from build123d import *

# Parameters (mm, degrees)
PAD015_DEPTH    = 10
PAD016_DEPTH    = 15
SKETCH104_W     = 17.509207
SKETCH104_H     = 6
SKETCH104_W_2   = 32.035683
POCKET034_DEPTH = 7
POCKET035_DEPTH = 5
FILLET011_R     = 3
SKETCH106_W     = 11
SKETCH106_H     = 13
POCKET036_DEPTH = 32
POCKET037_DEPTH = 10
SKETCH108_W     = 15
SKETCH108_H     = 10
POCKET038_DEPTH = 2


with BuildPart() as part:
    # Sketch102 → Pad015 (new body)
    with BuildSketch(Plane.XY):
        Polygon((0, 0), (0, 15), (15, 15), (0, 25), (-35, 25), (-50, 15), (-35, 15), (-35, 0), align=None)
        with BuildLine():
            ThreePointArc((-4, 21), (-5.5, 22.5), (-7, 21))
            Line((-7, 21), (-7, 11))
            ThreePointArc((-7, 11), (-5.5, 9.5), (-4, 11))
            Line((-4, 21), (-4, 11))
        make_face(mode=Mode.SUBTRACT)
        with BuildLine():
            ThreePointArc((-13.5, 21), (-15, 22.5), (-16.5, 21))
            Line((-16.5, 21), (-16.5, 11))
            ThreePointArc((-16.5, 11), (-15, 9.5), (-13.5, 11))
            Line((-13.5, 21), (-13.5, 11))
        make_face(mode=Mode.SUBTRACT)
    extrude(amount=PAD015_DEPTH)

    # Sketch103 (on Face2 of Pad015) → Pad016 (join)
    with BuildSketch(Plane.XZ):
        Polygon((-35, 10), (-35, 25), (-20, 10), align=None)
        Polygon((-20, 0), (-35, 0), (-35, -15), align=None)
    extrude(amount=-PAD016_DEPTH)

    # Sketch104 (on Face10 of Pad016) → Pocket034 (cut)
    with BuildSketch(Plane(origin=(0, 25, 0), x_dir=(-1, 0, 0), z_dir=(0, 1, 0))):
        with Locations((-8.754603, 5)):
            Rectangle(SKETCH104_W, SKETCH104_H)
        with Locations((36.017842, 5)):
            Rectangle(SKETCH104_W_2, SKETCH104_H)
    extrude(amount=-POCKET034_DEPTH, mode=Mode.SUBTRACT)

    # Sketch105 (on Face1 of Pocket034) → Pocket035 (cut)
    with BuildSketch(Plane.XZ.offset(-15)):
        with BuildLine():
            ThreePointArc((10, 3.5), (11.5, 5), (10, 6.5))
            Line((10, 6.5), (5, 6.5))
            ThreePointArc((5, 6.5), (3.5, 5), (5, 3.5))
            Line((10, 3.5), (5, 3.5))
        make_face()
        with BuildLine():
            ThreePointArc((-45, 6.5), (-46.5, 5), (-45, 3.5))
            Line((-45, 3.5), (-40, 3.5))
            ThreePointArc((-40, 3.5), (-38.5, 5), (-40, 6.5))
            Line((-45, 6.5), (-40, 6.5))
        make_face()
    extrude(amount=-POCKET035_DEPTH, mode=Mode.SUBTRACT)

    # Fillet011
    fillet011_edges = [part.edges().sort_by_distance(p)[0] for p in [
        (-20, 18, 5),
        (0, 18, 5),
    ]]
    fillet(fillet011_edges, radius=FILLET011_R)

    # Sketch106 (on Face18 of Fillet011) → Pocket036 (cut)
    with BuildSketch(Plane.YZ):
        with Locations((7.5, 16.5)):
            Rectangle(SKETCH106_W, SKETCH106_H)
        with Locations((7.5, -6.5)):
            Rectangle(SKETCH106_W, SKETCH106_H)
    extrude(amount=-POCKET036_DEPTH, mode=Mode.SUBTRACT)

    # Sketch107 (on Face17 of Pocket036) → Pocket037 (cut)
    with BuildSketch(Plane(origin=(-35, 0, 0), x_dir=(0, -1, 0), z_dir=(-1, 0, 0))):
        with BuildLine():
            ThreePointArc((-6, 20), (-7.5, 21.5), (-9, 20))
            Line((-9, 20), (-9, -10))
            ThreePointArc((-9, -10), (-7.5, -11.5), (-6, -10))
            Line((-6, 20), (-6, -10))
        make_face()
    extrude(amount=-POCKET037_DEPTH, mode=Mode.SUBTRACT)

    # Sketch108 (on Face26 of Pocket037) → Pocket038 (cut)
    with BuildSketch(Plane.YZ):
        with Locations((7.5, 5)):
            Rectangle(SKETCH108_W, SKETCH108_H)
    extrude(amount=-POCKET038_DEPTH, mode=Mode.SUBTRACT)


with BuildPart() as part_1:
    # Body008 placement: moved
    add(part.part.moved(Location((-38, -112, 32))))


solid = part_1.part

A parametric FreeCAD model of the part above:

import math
import FreeCAD as App
import Part
import Sketcher
from FreeCAD import Vector


def edges_at(feature, points):
    """Names of the edges that pass closest to the given points."""
    edges = feature.Shape.Edges
    near = lambda p: min(range(len(edges)), key=lambda i: edges[i].distToShape(Part.Vertex(*p))[0])
    return sorted({f"Edge{near(p) + 1}" for p in points})

doc = App.newDocument("Part")
body = doc.addObject("PartDesign::Body", "Body")

# Sketch on XY plane
sketch1 = doc.addObject("Sketcher::SketchObject", "Sketch")
body.addObject(sketch1)
sketch1.AttachmentSupport = (doc.XY_Plane, [""])
sketch1.MapMode = "FlatFace"
sketch1.addGeometry([
    Part.LineSegment(Vector(0, 0, 0), Vector(0, 15, 0)),  # 0
    Part.LineSegment(Vector(0, 15, 0), Vector(15, 15, 0)),  # 1
    Part.LineSegment(Vector(15, 15, 0), Vector(0, 25, 0)),  # 2
    Part.LineSegment(Vector(0, 25, 0), Vector(-35, 25, 0)),  # 3
    Part.LineSegment(Vector(-35, 25, 0), Vector(-50, 15, 0)),  # 4
    Part.LineSegment(Vector(-50, 15, 0), Vector(-35, 15, 0)),  # 5
    Part.LineSegment(Vector(-35, 15, 0), Vector(-35, 0, 0)),  # 6
    Part.LineSegment(Vector(-35, 0, 0), Vector(0, 0, 0)),  # 7
    Part.ArcOfCircle(Part.Circle(Vector(-15, 21, 0), Vector(0, 0, 1), 1.5), math.radians(0), math.radians(180)),  # 8
    Part.LineSegment(Vector(-13.5, 21, 0), Vector(-13.5, 11, 0)),  # 9
    Part.ArcOfCircle(Part.Circle(Vector(-15, 11, 0), Vector(0, 0, 1), 1.5), math.radians(180), math.radians(360)),  # 10
    Part.LineSegment(Vector(-16.5, 11, 0), Vector(-16.5, 21, 0)),  # 11
    Part.ArcOfCircle(Part.Circle(Vector(-5.5, 21, 0), Vector(0, 0, 1), 1.5), math.radians(0), math.radians(180)),  # 12
    Part.LineSegment(Vector(-4, 21, 0), Vector(-4, 11, 0)),  # 13
    Part.ArcOfCircle(Part.Circle(Vector(-5.5, 11, 0), Vector(0, 0, 1), 1.5), math.radians(180), math.radians(360)),  # 14
    Part.LineSegment(Vector(-7, 11, 0), Vector(-7, 21, 0)),  # 15
], False)
sketch1.addConstraint([
    Sketcher.Constraint("Coincident", 0, 2, 1, 1),
    Sketcher.Constraint("Coincident", 1, 2, 2, 1),
    Sketcher.Constraint("Coincident", 2, 2, 3, 1),
    Sketcher.Constraint("Coincident", 3, 2, 4, 1),
    Sketcher.Constraint("Coincident", 4, 2, 5, 1),
    Sketcher.Constraint("Coincident", 5, 2, 6, 1),
    Sketcher.Constraint("Coincident", 6, 2, 7, 1),
    Sketcher.Constraint("Coincident", 7, 2, 0, 1),
    Sketcher.Constraint("Tangent", 8, 1, 9, 1),
    Sketcher.Constraint("Tangent", 9, 2, 10, 2),
    Sketcher.Constraint("Tangent", 10, 1, 11, 1),
    Sketcher.Constraint("Tangent", 11, 2, 8, 2),
    Sketcher.Constraint("Tangent", 12, 1, 13, 1),
    Sketcher.Constraint("Tangent", 13, 2, 14, 2),
    Sketcher.Constraint("Tangent", 14, 1, 15, 1),
    Sketcher.Constraint("Tangent", 15, 2, 12, 2),
    Sketcher.Constraint("Vertical", 0),
    Sketcher.Constraint("Horizontal", 1),
    Sketcher.Constraint("Horizontal", 3),
    Sketcher.Constraint("Horizontal", 5),
    Sketcher.Constraint("Vertical", 6),
    Sketcher.Constraint("Horizontal", 7),
    Sketcher.Constraint("Vertical", 9),
    Sketcher.Constraint("Vertical", 11),
    Sketcher.Constraint("Vertical", 13),
    Sketcher.Constraint("Vertical", 15),
    Sketcher.Constraint("Coincident", 7, 2, -1, 1),
    Sketcher.Constraint("Equal", 10, 12),
    Sketcher.Constraint("PointOnObject", 2, 2, -2),
    Sketcher.Constraint("Horizontal", 8, 3, 12, 3),
    Sketcher.Constraint("Horizontal", 10, 3, 14, 3),
    Sketcher.Constraint("Horizontal", 1, 2, 4, 2),
    Sketcher.Constraint("Vertical", 3, 2, 5, 2),
    Sketcher.Constraint("Equal", 1, 5),
    Sketcher.Constraint("Equal", 5, 0),
    Sketcher.Constraint("Radius", 8, 1.5),
    Sketcher.Constraint("DistanceX", 1, 1, 1, 2, 15.0),
    Sketcher.Constraint("DistanceX", 3, 2, 3, 1, 35.0),
    Sketcher.Constraint("DistanceY", 9, 2, 9, 1, 10.0),
    Sketcher.Constraint("DistanceX", 8, 3, -1, 1, 15.0),
    Sketcher.Constraint("DistanceY", -1, 1, 8, 3, 21.0),
    Sketcher.Constraint("DistanceY", -1, 1, 2, 2, 25.0),
    Sketcher.Constraint("DistanceX", 12, 1, -1, 1, 4.0),
])
pad1 = doc.addObject("PartDesign::Pad", "Pad")
body.addObject(pad1)
pad1.Profile = sketch1
pad1.Length = 10

# Sketch on XZ plane
sketch2 = doc.addObject("Sketcher::SketchObject", "Sketch001")
body.addObject(sketch2)
sketch2.AttachmentSupport = (doc.XZ_Plane, [""])
sketch2.MapMode = "FlatFace"
sketch2.addGeometry([
    Part.LineSegment(Vector(-35, 25, 0), Vector(-35, 10, 0)),  # 0
    Part.LineSegment(Vector(-35, 10, 0), Vector(-20, 10, 0)),  # 1
    Part.LineSegment(Vector(-20, 10, 0), Vector(-35, 25, 0)),  # 2
    Part.LineSegment(Vector(-20, 0, 0), Vector(-35, 0, 0)),  # 3
    Part.LineSegment(Vector(-35, 0, 0), Vector(-35, -15, 0)),  # 4
    Part.LineSegment(Vector(-35, -15, 0), Vector(-20, 0, 0)),  # 5
], False)
sketch2.addConstraint([
    Sketcher.Constraint("Coincident", 0, 2, 1, 1),
    Sketcher.Constraint("Coincident", 1, 2, 2, 1),
    Sketcher.Constraint("Coincident", 2, 2, 0, 1),
    Sketcher.Constraint("Coincident", 3, 2, 4, 1),
    Sketcher.Constraint("Coincident", 4, 2, 5, 1),
    Sketcher.Constraint("Coincident", 5, 2, 3, 1),
    Sketcher.Constraint("Vertical", 0),
    Sketcher.Constraint("Horizontal", 1),
    Sketcher.Constraint("Horizontal", 3),
    Sketcher.Constraint("Vertical", 4),
    Sketcher.Constraint("PointOnObject", 3, 2, -1),
    Sketcher.Constraint("Perpendicular", 2, 5),
    Sketcher.Constraint("Vertical", 2, 2, 3, 2),
    Sketcher.Constraint("Vertical", 1, 2, 5, 2),
    Sketcher.Constraint("Equal", 3, 0),
    Sketcher.Constraint("DistanceX", 1, 1, 1, 2, 15.0),
    Sketcher.Constraint("DistanceX", 0, 2, -1, 1, 35.0),
    Sketcher.Constraint("DistanceY", -1, 1, 0, 2, 10.0),
])
pad2 = doc.addObject("PartDesign::Pad", "Pad001")
body.addObject(pad2)
pad2.Profile = sketch2
pad2.Length = 15
pad2.Reversed = True

# Sketch on XZ plane
sketch3 = doc.addObject("Sketcher::SketchObject", "Sketch002")
body.addObject(sketch3)
sketch3.AttachmentSupport = (doc.XZ_Plane, [""])
sketch3.MapMode = "FlatFace"
sketch3.AttachmentOffset = App.Placement(Vector(0, 0, -25), App.Rotation())
sketch3.addGeometry([
    Part.LineSegment(Vector(18, 8, 0), Vector(18, 2, 0)),  # 0
    Part.LineSegment(Vector(18, 2, 0), Vector(0, 2, 0)),  # 1
    Part.LineSegment(Vector(0, 2, 0), Vector(0, 8, 0)),  # 2
    Part.LineSegment(Vector(0, 8, 0), Vector(18, 8, 0)),  # 3
    Part.LineSegment(Vector(-20, 8, 0), Vector(-20, 2, 0)),  # 4
    Part.LineSegment(Vector(-20, 2, 0), Vector(-52, 2, 0)),  # 5
    Part.LineSegment(Vector(-52, 2, 0), Vector(-52, 8, 0)),  # 6
    Part.LineSegment(Vector(-52, 8, 0), Vector(-20, 8, 0)),  # 7
], False)
sketch3.addConstraint([
    Sketcher.Constraint("Coincident", 0, 2, 1, 1),
    Sketcher.Constraint("Coincident", 1, 2, 2, 1),
    Sketcher.Constraint("Coincident", 2, 2, 3, 1),
    Sketcher.Constraint("Coincident", 3, 2, 0, 1),
    Sketcher.Constraint("Coincident", 4, 2, 5, 1),
    Sketcher.Constraint("Coincident", 5, 2, 6, 1),
    Sketcher.Constraint("Coincident", 6, 2, 7, 1),
    Sketcher.Constraint("Coincident", 7, 2, 4, 1),
    Sketcher.Constraint("Vertical", 0),
    Sketcher.Constraint("Horizontal", 1),
    Sketcher.Constraint("Vertical", 2),
    Sketcher.Constraint("Horizontal", 3),
    Sketcher.Constraint("Vertical", 4),
    Sketcher.Constraint("Horizontal", 5),
    Sketcher.Constraint("Vertical", 6),
    Sketcher.Constraint("Horizontal", 7),
    Sketcher.Constraint("PointOnObject", 1, 2, -2),
    Sketcher.Constraint("Horizontal", 1, 2, 4, 2),
    Sketcher.Constraint("Horizontal", 3, 2, 6, 2),
    Sketcher.Constraint("DistanceY", 0, 2, 0, 1, 6.0),
    Sketcher.Constraint("DistanceY", -1, 1, 0, 2, 2.0),
    Sketcher.Constraint("DistanceX", 4, 2, -1, 1, 20.0),
    Sketcher.Constraint("DistanceX", 1, 2, 1, 1, 17.509207),
    Sketcher.Constraint("DistanceX", 5, 2, 5, 1, 32.035683),
])
pocket1 = doc.addObject("PartDesign::Pocket", "Pocket")
body.addObject(pocket1)
pocket1.Profile = sketch3
pocket1.Length = 7
pocket1.Reversed = True

# Sketch on XZ plane
sketch4 = doc.addObject("Sketcher::SketchObject", "Sketch003")
body.addObject(sketch4)
sketch4.AttachmentSupport = (doc.XZ_Plane, [""])
sketch4.MapMode = "FlatFace"
sketch4.AttachmentOffset = App.Placement(Vector(0, 0, -15), App.Rotation())
sketch4.addGeometry([
    Part.ArcOfCircle(Part.Circle(Vector(10, 5, 0), Vector(0, 0, 1), 1.5), math.radians(-90), math.radians(90)),  # 0
    Part.LineSegment(Vector(10, 6.5, 0), Vector(5, 6.5, 0)),  # 1
    Part.ArcOfCircle(Part.Circle(Vector(5, 5, 0), Vector(0, 0, 1), 1.5), math.radians(90), math.radians(270)),  # 2
    Part.LineSegment(Vector(5, 3.5, 0), Vector(10, 3.5, 0)),  # 3
    Part.ArcOfCircle(Part.Circle(Vector(-45, 5, 0), Vector(0, 0, 1), 1.5), math.radians(90), math.radians(270)),  # 4
    Part.LineSegment(Vector(-45, 3.5, 0), Vector(-40, 3.5, 0)),  # 5
    Part.ArcOfCircle(Part.Circle(Vector(-40, 5, 0), Vector(0, 0, 1), 1.5), math.radians(-90), math.radians(90)),  # 6
    Part.LineSegment(Vector(-40, 6.5, 0), Vector(-45, 6.5, 0)),  # 7
], False)
sketch4.addConstraint([
    Sketcher.Constraint("Tangent", 0, 2, 1, 1),
    Sketcher.Constraint("Tangent", 1, 2, 2, 1),
    Sketcher.Constraint("Tangent", 2, 2, 3, 1),
    Sketcher.Constraint("Tangent", 3, 2, 0, 1),
    Sketcher.Constraint("Tangent", 4, 2, 5, 1),
    Sketcher.Constraint("Tangent", 5, 2, 6, 1),
    Sketcher.Constraint("Tangent", 6, 2, 7, 1),
    Sketcher.Constraint("Tangent", 7, 2, 4, 1),
    Sketcher.Constraint("Horizontal", 1),
    Sketcher.Constraint("Horizontal", 3),
    Sketcher.Constraint("Horizontal", 5),
    Sketcher.Constraint("Horizontal", 7),
    Sketcher.Constraint("Equal", 2, 4),
    Sketcher.Constraint("Horizontal", 2, 3, 4, 3),
    Sketcher.Constraint("Equal", 3, 5),
    Sketcher.Constraint("Radius", 0, 1.5),
    Sketcher.Constraint("DistanceX", 1, 2, 1, 1, 5.0),
    Sketcher.Constraint("DistanceX", -1, 1, 0, 3, 10.0),
    Sketcher.Constraint("DistanceY", -1, 1, 0, 3, 5.0),
    Sketcher.Constraint("DistanceX", 4, 3, -1, 1, 45.0),
])
pocket2 = doc.addObject("PartDesign::Pocket", "Pocket001")
body.addObject(pocket2)
pocket2.Profile = sketch4
pocket2.Length = 5
doc.recompute()

fillet = doc.addObject("PartDesign::Fillet", "Fillet")
body.addObject(fillet)
fillet.Base = (pocket2, edges_at(pocket2, [(-20, 18, 5), (0, 18, 5)]))
fillet.Radius = 3

# Sketch on YZ plane
sketch5 = doc.addObject("Sketcher::SketchObject", "Sketch004")
body.addObject(sketch5)
sketch5.AttachmentSupport = (doc.YZ_Plane, [""])
sketch5.MapMode = "FlatFace"
sketch5.addGeometry([
    Part.LineSegment(Vector(2, 23, 0), Vector(2, 10, 0)),  # 0
    Part.LineSegment(Vector(2, 10, 0), Vector(13, 10, 0)),  # 1
    Part.LineSegment(Vector(13, 10, 0), Vector(13, 23, 0)),  # 2
    Part.LineSegment(Vector(13, 23, 0), Vector(2, 23, 0)),  # 3
    Part.LineSegment(Vector(2, 0, 0), Vector(2, -13, 0)),  # 4
    Part.LineSegment(Vector(2, -13, 0), Vector(13, -13, 0)),  # 5
    Part.LineSegment(Vector(13, -13, 0), Vector(13, 0, 0)),  # 6
    Part.LineSegment(Vector(13, 0, 0), Vector(2, 0, 0)),  # 7
], False)
sketch5.addConstraint([
    Sketcher.Constraint("Coincident", 0, 2, 1, 1),
    Sketcher.Constraint("Coincident", 1, 2, 2, 1),
    Sketcher.Constraint("Coincident", 2, 2, 3, 1),
    Sketcher.Constraint("Coincident", 3, 2, 0, 1),
    Sketcher.Constraint("Coincident", 4, 2, 5, 1),
    Sketcher.Constraint("Coincident", 5, 2, 6, 1),
    Sketcher.Constraint("Coincident", 6, 2, 7, 1),
    Sketcher.Constraint("Coincident", 7, 2, 4, 1),
    Sketcher.Constraint("Vertical", 0),
    Sketcher.Constraint("Horizontal", 1),
    Sketcher.Constraint("Vertical", 2),
    Sketcher.Constraint("Horizontal", 3),
    Sketcher.Constraint("Vertical", 4),
    Sketcher.Constraint("Horizontal", 5),
    Sketcher.Constraint("Vertical", 6),
    Sketcher.Constraint("Horizontal", 7),
    Sketcher.Constraint("PointOnObject", 6, 2, -1),
    Sketcher.Constraint("Vertical", 3, 2, 4, 2),
    Sketcher.Constraint("Vertical", 2, 2, 5, 2),
    Sketcher.Constraint("Equal", 2, 4),
    Sketcher.Constraint("DistanceX", 1, 1, 1, 2, 11.0),
    Sketcher.Constraint("DistanceY", 0, 2, 0, 1, 13.0),
    Sketcher.Constraint("DistanceX", -1, 1, 0, 2, 2.0),
    Sketcher.Constraint("DistanceY", -1, 1, 0, 2, 10.0),
])
pocket3 = doc.addObject("PartDesign::Pocket", "Pocket002")
body.addObject(pocket3)
pocket3.Profile = sketch5
pocket3.Length = 32

# Sketch on YZ plane
sketch6 = doc.addObject("Sketcher::SketchObject", "Sketch005")
body.addObject(sketch6)
sketch6.AttachmentSupport = (doc.YZ_Plane, [""])
sketch6.MapMode = "FlatFace"
sketch6.AttachmentOffset = App.Placement(Vector(0, 0, -35), App.Rotation())
sketch6.addGeometry([
    Part.ArcOfCircle(Part.Circle(Vector(7.5, 20, 0), Vector(0, 0, 1), 1.5), math.radians(0), math.radians(180)),
    Part.LineSegment(Vector(9, 20, 0), Vector(9, -10, 0)),
    Part.ArcOfCircle(Part.Circle(Vector(7.5, -10, 0), Vector(0, 0, 1), 1.5), math.radians(180), math.radians(360)),
    Part.LineSegment(Vector(6, -10, 0), Vector(6, 20, 0)),
], False)
sketch6.addConstraint([
    Sketcher.Constraint("Tangent", 0, 1, 1, 1),
    Sketcher.Constraint("Tangent", 1, 2, 2, 2),
    Sketcher.Constraint("Tangent", 2, 1, 3, 1),
    Sketcher.Constraint("Tangent", 3, 2, 0, 2),
    Sketcher.Constraint("Vertical", 1),
    Sketcher.Constraint("Vertical", 3),
    Sketcher.Constraint("Radius", 0, 1.5),
    Sketcher.Constraint("DistanceY", 1, 2, 1, 1, 30.0),
    Sketcher.Constraint("DistanceY", -1, 1, 0, 3, 20.0),
    Sketcher.Constraint("DistanceX", -1, 1, 0, 1, 9.0),
])
pocket4 = doc.addObject("PartDesign::Pocket", "Pocket003")
body.addObject(pocket4)
pocket4.Profile = sketch6
pocket4.Length = 10
pocket4.Reversed = True

# Sketch on YZ plane
sketch7 = doc.addObject("Sketcher::SketchObject", "Sketch006")
body.addObject(sketch7)
sketch7.AttachmentSupport = (doc.YZ_Plane, [""])
sketch7.MapMode = "FlatFace"
sketch7.addGeometry([
    Part.LineSegment(Vector(0, 10, 0), Vector(0, 0, 0)),
    Part.LineSegment(Vector(0, 0, 0), Vector(15, 0, 0)),
    Part.LineSegment(Vector(15, 0, 0), Vector(15, 10, 0)),
    Part.LineSegment(Vector(15, 10, 0), Vector(0, 10, 0)),
], False)
sketch7.addConstraint([
    Sketcher.Constraint("Coincident", 0, 2, 1, 1),
    Sketcher.Constraint("Coincident", 1, 2, 2, 1),
    Sketcher.Constraint("Coincident", 2, 2, 3, 1),
    Sketcher.Constraint("Coincident", 3, 2, 0, 1),
    Sketcher.Constraint("Vertical", 0),
    Sketcher.Constraint("Horizontal", 1),
    Sketcher.Constraint("Vertical", 2),
    Sketcher.Constraint("Horizontal", 3),
    Sketcher.Constraint("Coincident", 0, 2, -1, 1),
    Sketcher.Constraint("DistanceX", 1, 1, 1, 2, 15.0),
    Sketcher.Constraint("DistanceY", 0, 2, 0, 1, 10.0),
])
pocket5 = doc.addObject("PartDesign::Pocket", "Pocket004")
body.addObject(pocket5)
pocket5.Profile = sketch7
pocket5.Length = 2
body2 = doc.addObject("PartDesign::Body", "Body001")
doc.recompute()

body.Placement = App.Placement(Vector(-38, -112, 32), App.Rotation(Vector(0, 0, 1), 0))
boolean = doc.addObject("PartDesign::Boolean", "Boolean")
body2.addObject(boolean)
boolean.Type = "Fuse"
boolean.addObjects([body])

doc.recompute()
